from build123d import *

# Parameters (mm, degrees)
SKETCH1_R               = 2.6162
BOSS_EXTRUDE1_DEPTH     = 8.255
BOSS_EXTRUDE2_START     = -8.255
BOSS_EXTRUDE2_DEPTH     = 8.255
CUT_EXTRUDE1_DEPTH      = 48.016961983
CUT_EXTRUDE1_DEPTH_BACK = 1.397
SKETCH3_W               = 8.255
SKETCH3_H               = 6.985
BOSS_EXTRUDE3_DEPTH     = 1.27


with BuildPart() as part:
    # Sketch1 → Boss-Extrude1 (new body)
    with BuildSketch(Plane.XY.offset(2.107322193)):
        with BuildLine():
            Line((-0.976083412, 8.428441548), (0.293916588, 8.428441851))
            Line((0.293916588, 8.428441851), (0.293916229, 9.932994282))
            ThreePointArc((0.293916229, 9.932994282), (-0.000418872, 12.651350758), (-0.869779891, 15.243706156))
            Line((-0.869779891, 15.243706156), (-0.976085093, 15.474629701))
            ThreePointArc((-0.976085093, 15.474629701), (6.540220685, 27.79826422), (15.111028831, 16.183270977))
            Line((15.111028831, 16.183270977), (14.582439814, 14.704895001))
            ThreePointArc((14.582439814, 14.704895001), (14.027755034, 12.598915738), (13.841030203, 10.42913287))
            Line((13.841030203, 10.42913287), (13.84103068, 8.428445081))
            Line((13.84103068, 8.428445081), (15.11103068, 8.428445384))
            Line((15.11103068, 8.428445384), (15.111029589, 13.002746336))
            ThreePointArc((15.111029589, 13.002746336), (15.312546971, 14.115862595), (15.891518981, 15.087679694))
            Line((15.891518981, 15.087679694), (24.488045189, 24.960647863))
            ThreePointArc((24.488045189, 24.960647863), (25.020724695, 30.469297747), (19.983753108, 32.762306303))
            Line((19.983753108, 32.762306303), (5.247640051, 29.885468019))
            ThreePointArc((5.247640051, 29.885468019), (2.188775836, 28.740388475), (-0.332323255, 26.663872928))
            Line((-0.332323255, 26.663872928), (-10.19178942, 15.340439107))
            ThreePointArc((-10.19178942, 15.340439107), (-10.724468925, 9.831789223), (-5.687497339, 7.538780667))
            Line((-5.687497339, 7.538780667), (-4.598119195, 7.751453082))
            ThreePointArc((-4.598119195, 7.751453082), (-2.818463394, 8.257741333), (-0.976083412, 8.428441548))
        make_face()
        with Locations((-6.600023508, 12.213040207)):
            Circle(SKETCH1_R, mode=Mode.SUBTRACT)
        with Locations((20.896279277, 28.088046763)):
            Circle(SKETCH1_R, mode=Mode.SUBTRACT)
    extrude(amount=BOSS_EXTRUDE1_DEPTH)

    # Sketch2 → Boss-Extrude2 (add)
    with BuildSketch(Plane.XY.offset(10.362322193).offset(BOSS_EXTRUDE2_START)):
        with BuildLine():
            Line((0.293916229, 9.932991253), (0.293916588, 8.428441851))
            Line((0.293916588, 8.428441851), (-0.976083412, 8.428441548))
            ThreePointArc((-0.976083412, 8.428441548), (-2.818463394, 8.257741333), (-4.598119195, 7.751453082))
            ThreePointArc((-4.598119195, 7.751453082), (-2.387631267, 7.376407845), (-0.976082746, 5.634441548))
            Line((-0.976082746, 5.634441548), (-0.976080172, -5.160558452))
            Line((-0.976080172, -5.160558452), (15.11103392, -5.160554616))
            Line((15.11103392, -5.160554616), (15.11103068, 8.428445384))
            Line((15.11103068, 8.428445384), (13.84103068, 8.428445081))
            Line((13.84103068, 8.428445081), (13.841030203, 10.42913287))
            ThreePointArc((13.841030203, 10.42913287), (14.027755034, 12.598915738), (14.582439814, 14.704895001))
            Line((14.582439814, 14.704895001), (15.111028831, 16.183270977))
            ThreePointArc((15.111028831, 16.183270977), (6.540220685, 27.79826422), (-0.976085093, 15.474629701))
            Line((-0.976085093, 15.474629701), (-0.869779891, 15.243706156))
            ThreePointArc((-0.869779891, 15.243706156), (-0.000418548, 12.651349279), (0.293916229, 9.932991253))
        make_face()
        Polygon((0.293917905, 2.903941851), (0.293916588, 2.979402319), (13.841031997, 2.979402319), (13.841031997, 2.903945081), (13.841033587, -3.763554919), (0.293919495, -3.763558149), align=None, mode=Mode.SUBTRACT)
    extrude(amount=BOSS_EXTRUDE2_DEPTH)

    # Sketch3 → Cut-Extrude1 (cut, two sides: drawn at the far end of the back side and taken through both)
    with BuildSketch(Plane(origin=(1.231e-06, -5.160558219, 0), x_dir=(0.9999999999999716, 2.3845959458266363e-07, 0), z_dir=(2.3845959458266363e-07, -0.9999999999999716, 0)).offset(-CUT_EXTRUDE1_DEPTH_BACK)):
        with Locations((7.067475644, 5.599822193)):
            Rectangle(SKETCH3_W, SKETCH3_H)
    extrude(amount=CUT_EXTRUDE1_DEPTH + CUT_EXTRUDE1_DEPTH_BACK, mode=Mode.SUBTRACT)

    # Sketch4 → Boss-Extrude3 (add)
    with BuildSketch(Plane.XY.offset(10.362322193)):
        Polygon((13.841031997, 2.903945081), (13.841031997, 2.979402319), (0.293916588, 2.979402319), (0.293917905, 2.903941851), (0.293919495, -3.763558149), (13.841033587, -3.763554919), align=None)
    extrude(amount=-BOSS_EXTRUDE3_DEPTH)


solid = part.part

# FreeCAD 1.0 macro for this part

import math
import FreeCAD as App
import Part
import Sketcher

V = App.Vector
Q = App.Units.Quantity


def add_polygon(sketch, points):
    """Adds a closed chain of lines whose ends are joined by coincident constraints."""
    first, n = sketch.GeometryCount, len(points)
    for a, b in zip(points, points[1:] + points[:1]):
        sketch.addGeometry(Part.LineSegment(App.Vector(*a, 0), App.Vector(*b, 0)), False)
    for i in range(n):
        sketch.addConstraint(Sketcher.Constraint("Coincident", first + i, 2, first + (i + 1) % n, 1))

doc = App.newDocument("Part")
body = doc.addObject("PartDesign::Body", "Body")

sketch1 = body.newObject("Sketcher::SketchObject", "Sketch")
sketch1.AttachmentSupport = (doc.getObject("XY_Plane"), [""])
sketch1.MapMode = "FlatFace"
sketch1.AttachmentOffset = App.Placement(V(0, 0, 2.107322), App.Rotation())
sketch1.addGeometry([
    Part.LineSegment(V(-0.976083, 8.428442, 0), V(0.293917, 8.428442, 0)),
    Part.LineSegment(V(0.293917, 8.428442, 0), V(0.293916, 9.932994, 0)),
    Part.ArcOfCircle(Part.Circle(V(-12.406084, 9.932991, 0), V(0, 0, 1), 12.7), math.radians(0.000014), math.radians(24.718887)),
    Part.LineSegment(V(-0.86978, 15.243706, 0), V(-0.976085, 15.47463, 0)),
    Part.ArcOfCircle(Part.Circle(V(6.922901, 19.110912, 0), V(0, 0, 1), 8.695776), math.radians(-19.674362), math.radians(204.718887)),
    Part.LineSegment(V(15.111029, 16.183271, 0), V(14.58244, 14.704895, 0)),
    Part.ArcOfCircle(Part.Circle(V(26.54103, 10.429136, 0), V(0, 0, 1), 12.7), math.radians(160.325638), math.radians(180.000014)),
    Part.LineSegment(V(13.84103, 10.429133, 0), V(13.841031, 8.428445, 0)),
    Part.LineSegment(V(13.841031, 8.428445, 0), V(15.111031, 8.428445, 0)),
    Part.LineSegment(V(15.111031, 8.428445, 0), V(15.11103, 13.002746, 0)),
    Part.ArcOfCircle(Part.Circle(V(18.28603, 13.002747, 0), V(0, 0, 1), 3.175), math.radians(138.953472), math.radians(180.000014)),
    Part.LineSegment(V(15.891519, 15.08768, 0), V(24.488045, 24.960648, 0)),
    Part.ArcOfCircle(Part.Circle(V(20.896279, 28.088047, 0), V(0, 0, 1), 4.7625), math.radians(-41.046528), math.radians(101.046555)),
    Part.LineSegment(V(19.983753, 32.762306, 0), V(5.24764, 29.885468, 0)),
    Part.ArcOfCircle(Part.Circle(V(7.148128, 20.150543, 0), V(0, 0, 1), 9.9187), math.radians(101.046555), math.radians(138.953472)),
    Part.LineSegment(V(-0.332323, 26.663873, 0), V(-10.191789, 15.340439, 0)),
    Part.ArcOfCircle(Part.Circle(V(-6.600024, 12.21304, 0), V(0, 0, 1), 4.7625), math.radians(138.953472), math.radians(281.046555)),
    Part.LineSegment(V(-5.687497, 7.538781, 0), V(-4.598119, 7.751453, 0)),
    Part.ArcOfCircle(Part.Circle(V(-0.976081, -1.599406, 0), V(0, 0, 1), 10.027847), math.radians(90.000014), math.radians(111.173786)),
    Part.Circle(V(-6.600024, 12.21304, 0), V(0, 0, 1), 2.6162),
    Part.Circle(V(20.896279, 28.088047, 0), V(0, 0, 1), 2.6162),
], False)
sketch1.addConstraint([
    Sketcher.Constraint("Coincident", 0, 2, 1, 1),
    Sketcher.Constraint("Coincident", 1, 2, 2, 1),
    Sketcher.Constraint("Coincident", 2, 2, 3, 1),
    Sketcher.Constraint("Coincident", 3, 2, 4, 2),
    Sketcher.Constraint("Coincident", 4, 1, 5, 1),
    Sketcher.Constraint("Coincident", 5, 2, 6, 1),
    Sketcher.Constraint("Coincident", 6, 2, 7, 1),
    Sketcher.Constraint("Coincident", 7, 2, 8, 1),
    Sketcher.Constraint("Coincident", 8, 2, 9, 1),
    Sketcher.Constraint("Coincident", 9, 2, 10, 2),
    Sketcher.Constraint("Coincident", 10, 1, 11, 1),
    Sketcher.Constraint("Coincident", 11, 2, 12, 1),
    Sketcher.Constraint("Coincident", 12, 2, 13, 1),
    Sketcher.Constraint("Coincident", 13, 2, 14, 1),
    Sketcher.Constraint("Coincident", 14, 2, 15, 1),
    Sketcher.Constraint("Coincident", 15, 2, 16, 1),
    Sketcher.Constraint("Coincident", 16, 2, 17, 1),
    Sketcher.Constraint("Coincident", 17, 2, 18, 2),
    Sketcher.Constraint("Coincident", 18, 1, 0, 1),
    Sketcher.Constraint("Horizontal", 0),
    Sketcher.Constraint("Vertical", 1),
    Sketcher.Constraint("Vertical", 7),
    Sketcher.Constraint("Horizontal", 8),
    Sketcher.Constraint("Vertical", 9),
    Sketcher.Constraint("Coincident", 19, 3, 16, 3),
    Sketcher.Constraint("Coincident", 20, 3, 12, 3),
    Sketcher.Constraint("Radius", 2, Q("0.5 in")),
    Sketcher.Constraint("Radius", 6, Q("0.5 in")),
    Sketcher.Constraint("Diameter", 19, Q("0.206 in")),
    Sketcher.Constraint("Diameter", 20, Q("0.206 in")),
    Sketcher.Constraint("Radius", 10, Q("0.125 in")),
    Sketcher.Constraint("Radius", 12, Q("0.1875 in")),
    Sketcher.Constraint("Radius", 16, Q("0.1875 in")),
    Sketcher.Constraint("DistanceX", 0, 1, 0, 2, Q("0.05 in")),
    Sketcher.Constraint("DistanceX", 8, 1, 8, 2, Q("0.05 in")),
    Sketcher.Constraint("Radius", 14, Q("0.3905 in")),
    Sketcher.Constraint("DistanceX", 2, 3, 18, 3, Q("0.4500001 in")),
    Sketcher.Constraint("DistanceX", 3, 2, 1, 2, Q("0.0500001 in")),
    Sketcher.Constraint("DistanceX", 4, 1, 6, 3, Q("0.4500001 in")),
    Sketcher.Constraint("DistanceY", 14, 3, 12, 3, Q("0.3125001 in")),
    Sketcher.Constraint("DistanceY", 16, 3, 14, 3, Q("0.3125001 in")),
    Sketcher.Constraint("DistanceY", 0, 2, 16, 3, Q("0.1489999 in")),
    Sketcher.Constraint("DistanceY", 9, 1, 9, 2, 4.574301),
    Sketcher.Constraint("DistanceX", -1, 1, 13, 2, Q("0.2066 in")),
    Sketcher.Constraint("Radius", 4, 8.695776),
    Sketcher.Constraint("Radius", 18, 10.027847),
    Sketcher.Constraint("DistanceX", 14, 3, 10, 3, Q("0.4385001 in")),
    Sketcher.Constraint("DistanceX", 16, 3, 2, 2, Q("0.2256001 in")),
    Sketcher.Constraint("DistanceX", 17, 2, 0, 2, Q("0.1925998 in")),
    Sketcher.Constraint("Distance", 13, 15.014301),
    Sketcher.Constraint("Distance", 15, 15.014301),
    Sketcher.Constraint("DistanceX", -1, 1, 4, 3, 6.922901),
    Sketcher.Constraint("DistanceY", 10, 3, 12, 3, 15.0853),
    Sketcher.Constraint("DistanceY", 18, 3, 1, 2, 11.5324),
    Sketcher.Constraint("DistanceY", 8, 2, 10, 3, 4.574302),
    Sketcher.Constraint("DistanceY", 11, 2, 20, 3, 3.127399),
    Sketcher.Constraint("DistanceY", 19, 3, 15, 2, 3.127399),
    Sketcher.Constraint("DistanceY", 7, 2, 7, 1, 2.000688),
    Sketcher.Constraint("DistanceY", -1, 1, 2, 3, 9.932991),
    Sketcher.Constraint("DistanceX", -1, 1, 6, 3, 26.54103),
    Sketcher.Constraint("DistanceX", -1, 1, 12, 3, 20.896279),
    Sketcher.Constraint("DistanceY", -1, 1, 16, 3, 12.21304),
    Sketcher.Constraint("DistanceX", 18, 3, -1, 1, 0.976081),
    Sketcher.Constraint("DistanceX", 2, 2, -1, 1, 0.86978),
    Sketcher.Constraint("DistanceY", -1, 1, 3, 2, 15.47463),
    Sketcher.Constraint("DistanceX", -1, 1, 5, 2, 14.58244),
    Sketcher.Constraint("DistanceX", -1, 1, 10, 1, 15.891519),
    Sketcher.Constraint("DistanceY", -1, 1, 16, 2, 7.538781),
    Sketcher.Constraint("DistanceY", 6, 3, 10, 3, 2.573611),
])
pad1 = body.newObject("PartDesign::Pad", "Pad")
pad1.Profile = sketch1
pad1.Length = Q("0.325 in")

sketch2 = body.newObject("Sketcher::SketchObject", "Sketch001")
sketch2.AttachmentSupport = (doc.getObject("XY_Plane"), [""])
sketch2.MapMode = "FlatFace"
sketch2.AttachmentOffset = App.Placement(V(0, 0, 2.107322), App.Rotation())
sketch2.addGeometry(Part.LineSegment(V(0.29, 9.93, 0), V(0.29, 8.43, 0)), False)
sketch2.addGeometry(Part.LineSegment(V(0.29, 8.43, 0), V(-0.98, 8.43, 0)), False)
sketch2.addGeometry(Part.ArcOfCircle(Part.Circle(V(-0.98, -1.6, 0), V(0, 0, 1), 10.03), math.radians(90), math.radians(111)), False)
sketch2.addGeometry(Part.ArcOfCircle(Part.Circle(V(-3.99, 4.64, 0), V(0, 0, 1), 3.18), math.radians(18), math.radians(101)), False)
sketch2.addGeometry(Part.LineSegment(V(-0.98, 5.63, 0), V(-0.98, -5.16, 0)), False)
sketch2.addGeometry(Part.LineSegment(V(-0.98, -5.16, 0), V(15.11, -5.16, 0)), False)
sketch2.addGeometry(Part.LineSegment(V(15.11, -5.16, 0), V(15.11, 8.43, 0)), False)
sketch2.addGeometry(Part.LineSegment(V(15.11, 8.43, 0), V(13.84, 8.43, 0)), False)
sketch2.addGeometry(Part.LineSegment(V(13.84, 8.43, 0), V(13.84, 10.43, 0)), False)
sketch2.addGeometry(Part.ArcOfCircle(Part.Circle(V(26.54, 10.43, 0), V(0, 0, 1), 12.7), math.radians(160.33), math.radians(180)), False)
sketch2.addGeometry(Part.LineSegment(V(14.58, 14.7, 0), V(15.11, 16.18, 0)), False)
sketch2.addGeometry(Part.ArcOfCircle(Part.Circle(V(6.92, 19.11, 0), V(0, 0, 1), 8.7), math.radians(-20), math.radians(205)), False)
sketch2.addGeometry(Part.LineSegment(V(-0.98, 15.47, 0), V(-0.87, 15.24, 0)), False)
sketch2.addGeometry(Part.ArcOfCircle(Part.Circle(V(-12.41, 9.93, 0), V(0, 0, 1), 12.7), math.radians(0), math.radians(25)), False)
add_polygon(sketch2, [(0.29, -3.76), (0.29, 2.9), (0.29, 2.98), (13.84, 2.98), (13.84, 2.9), (13.84, -3.76)])
sketch2.addConstraint([
    Sketcher.Constraint("Coincident", 0, 2, 1, 1),
    Sketcher.Constraint("Tangent", 1, 2, 2, 1),
    Sketcher.Constraint("Coincident", 2, 2, 3, 2),
    Sketcher.Constraint("Coincident", 3, 1, 4, 1),
    Sketcher.Constraint("Coincident", 4, 2, 5, 1),
    Sketcher.Constraint("Coincident", 5, 2, 6, 1),
    Sketcher.Constraint("Coincident", 6, 2, 7, 1),
    Sketcher.Constraint("Coincident", 7, 2, 8, 1),
    Sketcher.Constraint("Tangent", 8, 2, 9, 2),
    Sketcher.Constraint("Tangent", 9, 1, 10, 1),
    Sketcher.Constraint("Tangent", 10, 2, 11, 1),
    Sketcher.Constraint("Tangent", 11, 2, 12, 1),
    Sketcher.Constraint("Tangent", 12, 2, 13, 2),
    Sketcher.Constraint("Tangent", 13, 1, 0, 1),
    Sketcher.Constraint("Vertical", 0),
    Sketcher.Constraint("Horizontal", 1),
    Sketcher.Constraint("Horizontal", 7),
    Sketcher.Constraint("Vertical", 8),
    Sketcher.Constraint("Vertical", 14),
    Sketcher.Constraint("Vertical", 15),
    Sketcher.Constraint("Horizontal", 16),
    Sketcher.Constraint("Vertical", 17),
    Sketcher.Constraint("Vertical", 18),
    Sketcher.Constraint("Equal", 9, 13),
    Sketcher.Constraint("Perpendicular", 4, 5),
    Sketcher.Constraint("Perpendicular", 5, 6),
    Sketcher.Constraint("Perpendicular", 6, 19),
    Sketcher.Constraint("Vertical", 1, 2, 3, 1),
    Sketcher.Constraint("Vertical", 2, 3, 4, 2),
    Sketcher.Constraint("Vertical", 6, 2, 10, 2),
    Sketcher.Constraint("Vertical", 1, 2, 11, 2),
    Sketcher.Constraint("Vertical", 13, 1, 14, 2),
    Sketcher.Constraint("Vertical", 8, 2, 16, 2),
    Sketcher.Constraint("Equal", 1, 7),
    Sketcher.Constraint("Equal", 14, 18),
    Sketcher.Constraint("Radius", 9, Q("0.5 in")),
    Sketcher.Constraint("Radius", 3, Q("0.125 in")),
    Sketcher.Constraint("DistanceX", 1, 2, 1, 1, Q("0.05 in")),
    Sketcher.Constraint("DistanceY", 3, 1, 1, 2, Q("0.11 in")),
    Sketcher.Constraint("DistanceY", 18, 2, 7, 2, Q("0.48 in")),
    Sketcher.Constraint("Distance", 4, Q("0.425 in")),
    Sketcher.Constraint("Distance", 6, Q("0.535 in")),
    Sketcher.Constraint("DistanceY", 14, 1, 14, 2, Q("0.2625 in")),
    Sketcher.Constraint("DistanceX", 3, 3, 9, 3, Q("1.2019999 in")),
    Sketcher.Constraint("Radius", 2, 10.027847),
    Sketcher.Constraint("Radius", 11, 8.695776),
    Sketcher.Constraint("DistanceX", 2, 2, 1, 2, Q("0.1425998 in")),
    Sketcher.Constraint("DistanceY", 0, 2, 0, 1, 1.504549),
    Sketcher.Constraint("DistanceY", 15, 1, 15, 2, 0.07546),
    Sketcher.Constraint("DistanceX", -1, 1, 11, 3, 6.922901),
    Sketcher.Constraint("DistanceY", 8, 1, 8, 2, 2.000688),
    Sketcher.Constraint("DistanceY", -1, 1, 3, 3, 4.63528),
])
pad2 = body.newObject("PartDesign::Pad", "Pad001")
pad2.Profile = sketch2
pad2.Length = Q("0.325 in")

sketch3 = body.newObject("Sketcher::SketchObject", "Sketch002")
sketch3.AttachmentSupport = (doc.getObject("XZ_Plane"), [""])
sketch3.MapMode = "FlatFace"
sketch3.AttachmentOffset = App.Placement(V(0, 0, 5.160558), App.Rotation())
add_polygon(sketch3, [(3, 9), (3, 2), (11, 2), (11, 9)])
sketch3.addConstraint([
    Sketcher.Constraint("Vertical", 0),
    Sketcher.Constraint("Horizontal", 1),
    Sketcher.Constraint("Vertical", 2),
    Sketcher.Constraint("Horizontal", 3),
    Sketcher.Constraint("DistanceX", 1, 1, 1, 2, Q("0.325 in")),
    Sketcher.Constraint("DistanceY", 0, 2, 0, 1, Q("0.275 in")),
    Sketcher.Constraint("DistanceX", -1, 1, 0, 2, 2.939977),
    Sketcher.Constraint("DistanceY", -1, 1, 0, 2, 2.107322),
])
pocket1 = body.newObject("PartDesign::Pocket", "Pocket")
pocket1.Profile = sketch3
pocket1.Type = "TwoLengths"
pocket1.Length = 48.016962
pocket1.Length2 = Q("0.055 in")
pocket1.Reversed = True

sketch4 = body.newObject("Sketcher::SketchObject", "Sketch003")
sketch4.AttachmentSupport = (doc.getObject("XY_Plane"), [""])
sketch4.MapMode = "FlatFace"
sketch4.AttachmentOffset = App.Placement(V(0, 0, 10.362322), App.Rotation())
add_polygon(sketch4, [(13.84, 2.9), (13.84, 2.98), (0.29, 2.98), (0.29, 2.9), (0.29, -3.76), (13.84, -3.76)])
sketch4.addConstraint([
    Sketcher.Constraint("Vertical", 0),
    Sketcher.Constraint("Horizontal", 1),
    Sketcher.Constraint("Vertical", 2),
    Sketcher.Constraint("Vertical", 3),
    Sketcher.Constraint("Vertical", 5),
    Sketcher.Constraint("Equal", 3, 5),
    Sketcher.Constraint("Angle", 4, Q("0.000014 deg")),
    Sketcher.Constraint("DistanceY", 3, 2, 3, 1, Q("0.2625 in")),
    Sketcher.Constraint("DistanceY", 2, 2, 2, 1, 0.07546),
    Sketcher.Constraint("DistanceX", 1, 2, 1, 1, 13.547115),
    Sketcher.Constraint("DistanceX", -1, 1, 0, 2, 13.841032),
    Sketcher.Constraint("DistanceY", -1, 1, 2, 2, 2.903942),
])
pad3 = body.newObject("PartDesign::Pad", "Pad002")
pad3.Profile = sketch4
pad3.Length = Q("0.05 in")
pad3.Reversed = True

doc.recompute()
